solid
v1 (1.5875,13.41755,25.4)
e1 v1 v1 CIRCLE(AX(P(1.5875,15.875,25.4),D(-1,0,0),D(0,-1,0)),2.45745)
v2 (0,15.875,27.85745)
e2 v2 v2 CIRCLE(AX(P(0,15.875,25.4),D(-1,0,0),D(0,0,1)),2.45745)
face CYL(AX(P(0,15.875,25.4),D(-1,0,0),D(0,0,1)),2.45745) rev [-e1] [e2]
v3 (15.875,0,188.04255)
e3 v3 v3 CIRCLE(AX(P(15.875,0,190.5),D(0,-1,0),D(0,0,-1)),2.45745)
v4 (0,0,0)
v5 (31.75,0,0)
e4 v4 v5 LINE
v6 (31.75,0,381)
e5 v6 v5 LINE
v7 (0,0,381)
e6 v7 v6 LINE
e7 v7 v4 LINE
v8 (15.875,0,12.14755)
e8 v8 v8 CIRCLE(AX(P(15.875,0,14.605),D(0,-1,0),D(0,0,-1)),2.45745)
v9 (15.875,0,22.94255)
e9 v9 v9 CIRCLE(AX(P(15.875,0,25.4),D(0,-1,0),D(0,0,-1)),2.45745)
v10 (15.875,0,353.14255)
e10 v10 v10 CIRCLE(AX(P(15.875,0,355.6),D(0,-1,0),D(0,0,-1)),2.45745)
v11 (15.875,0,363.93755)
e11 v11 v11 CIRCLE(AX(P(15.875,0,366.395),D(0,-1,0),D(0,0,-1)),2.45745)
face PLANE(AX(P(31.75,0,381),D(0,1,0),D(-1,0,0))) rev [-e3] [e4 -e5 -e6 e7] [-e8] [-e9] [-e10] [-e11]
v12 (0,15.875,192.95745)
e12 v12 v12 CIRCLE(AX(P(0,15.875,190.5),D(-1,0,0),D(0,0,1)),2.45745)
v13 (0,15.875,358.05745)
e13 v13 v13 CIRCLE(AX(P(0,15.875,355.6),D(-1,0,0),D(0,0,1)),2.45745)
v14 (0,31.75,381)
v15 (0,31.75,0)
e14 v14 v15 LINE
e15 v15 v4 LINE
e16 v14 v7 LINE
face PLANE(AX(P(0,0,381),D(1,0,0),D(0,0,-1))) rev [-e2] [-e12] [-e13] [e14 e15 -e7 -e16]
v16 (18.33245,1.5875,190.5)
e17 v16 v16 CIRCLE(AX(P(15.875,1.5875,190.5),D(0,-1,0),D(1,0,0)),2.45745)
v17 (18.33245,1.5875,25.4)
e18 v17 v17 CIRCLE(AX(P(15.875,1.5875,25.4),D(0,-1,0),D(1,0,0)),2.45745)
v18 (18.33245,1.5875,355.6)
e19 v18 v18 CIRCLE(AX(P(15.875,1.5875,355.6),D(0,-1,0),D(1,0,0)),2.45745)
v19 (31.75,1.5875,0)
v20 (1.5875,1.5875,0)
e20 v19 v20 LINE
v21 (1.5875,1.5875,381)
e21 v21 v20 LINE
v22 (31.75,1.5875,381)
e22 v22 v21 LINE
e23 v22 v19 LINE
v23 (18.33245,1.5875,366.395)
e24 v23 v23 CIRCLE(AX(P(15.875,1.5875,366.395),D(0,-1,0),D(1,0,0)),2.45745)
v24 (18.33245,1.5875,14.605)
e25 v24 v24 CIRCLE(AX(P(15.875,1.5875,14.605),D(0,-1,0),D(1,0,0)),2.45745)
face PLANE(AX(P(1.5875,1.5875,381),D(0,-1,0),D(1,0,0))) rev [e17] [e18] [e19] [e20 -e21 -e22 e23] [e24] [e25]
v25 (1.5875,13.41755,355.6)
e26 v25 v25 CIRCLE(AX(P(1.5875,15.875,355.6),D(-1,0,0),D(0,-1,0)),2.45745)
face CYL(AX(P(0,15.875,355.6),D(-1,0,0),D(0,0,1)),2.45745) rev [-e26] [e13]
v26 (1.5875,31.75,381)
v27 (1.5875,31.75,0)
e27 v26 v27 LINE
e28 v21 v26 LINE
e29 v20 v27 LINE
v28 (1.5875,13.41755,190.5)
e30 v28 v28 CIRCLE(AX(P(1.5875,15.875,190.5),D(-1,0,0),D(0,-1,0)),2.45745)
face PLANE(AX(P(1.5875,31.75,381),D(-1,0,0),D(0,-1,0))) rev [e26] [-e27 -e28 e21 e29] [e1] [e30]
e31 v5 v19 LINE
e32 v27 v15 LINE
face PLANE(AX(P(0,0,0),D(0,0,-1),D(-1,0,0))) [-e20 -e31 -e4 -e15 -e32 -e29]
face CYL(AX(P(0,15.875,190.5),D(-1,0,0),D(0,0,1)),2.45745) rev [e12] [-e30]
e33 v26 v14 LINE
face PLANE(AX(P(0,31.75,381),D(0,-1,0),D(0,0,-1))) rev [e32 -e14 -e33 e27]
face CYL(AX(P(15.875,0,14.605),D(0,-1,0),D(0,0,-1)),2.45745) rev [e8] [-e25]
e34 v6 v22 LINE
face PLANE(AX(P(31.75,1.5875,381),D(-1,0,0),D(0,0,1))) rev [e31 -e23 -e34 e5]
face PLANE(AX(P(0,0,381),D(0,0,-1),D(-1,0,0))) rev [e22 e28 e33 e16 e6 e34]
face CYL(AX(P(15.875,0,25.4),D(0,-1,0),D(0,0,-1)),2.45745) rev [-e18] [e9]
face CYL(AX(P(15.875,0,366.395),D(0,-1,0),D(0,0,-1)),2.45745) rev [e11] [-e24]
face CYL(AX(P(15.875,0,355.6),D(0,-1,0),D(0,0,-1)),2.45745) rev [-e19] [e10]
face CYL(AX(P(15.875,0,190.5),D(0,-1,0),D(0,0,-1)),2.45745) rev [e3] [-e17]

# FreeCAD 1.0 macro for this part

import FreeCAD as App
import Part
import Sketcher

V = App.Vector
Q = App.Units.Quantity


def add_polygon(sketch, points):
    """Adds a closed chain of lines whose ends are joined by coincident constraints."""
    first, n = sketch.GeometryCount, len(points)
    for a, b in zip(points, points[1:] + points[:1]):
        sketch.addGeometry(Part.LineSegment(App.Vector(*a, 0), App.Vector(*b, 0)), False)
    for i in range(n):
        sketch.addConstraint(Sketcher.Constraint("Coincident", first + i, 2, first + (i + 1) % n, 1))

doc = App.newDocument("Part")
body = doc.addObject("PartDesign::Body", "Body")

# Sketch on XY plane
sketch1 = doc.addObject("Sketcher::SketchObject", "Sketch")
body.addObject(sketch1)
sketch1.AttachmentSupport = (doc.XY_Plane, [""])
sketch1.MapMode = "FlatFace"
add_polygon(sketch1, [(0, 31.8), (0, 0), (31.8, 0), (31.8, 1.6), (1.6, 1.6), (1.6, 31.8)])  # lines 0-5
sketch1.addConstraint([
    Sketcher.Constraint("Vertical", 0),
    Sketcher.Constraint("Horizontal", 1),
    Sketcher.Constraint("Vertical", 2),
    Sketcher.Constraint("Horizontal", 3),
    Sketcher.Constraint("Vertical", 4),
    Sketcher.Constraint("Horizontal", 5),
    Sketcher.Constraint("Coincident", 0, 2, -1, 1),
    Sketcher.Constraint("Equal", 1, 0),
    Sketcher.Constraint("Equal", 5, 2),
    Sketcher.Constraint("DistanceX", 1, 1, 1, 2, Q("1.25 in")),
    Sketcher.Constraint("DistanceX", 3, 2, 3, 1, Q("1.1875 in")),
])
pad1 = doc.addObject("PartDesign::Pad", "Pad")
body.addObject(pad1)
pad1.Profile = sketch1
pad1.Length = Q("15 in")

# Sketch on YZ plane
sketch2 = doc.addObject("Sketcher::SketchObject", "Sketch001")
body.addObject(sketch2)
sketch2.AttachmentSupport = (doc.YZ_Plane, [""])
sketch2.MapMode = "FlatFace"
sketch2.addGeometry([
    Part.Circle(V(15.9, 355.6, 0), V(0, 0, 1), 2.5),
    Part.Circle(V(15.9, 25.4, 0), V(0, 0, 1), 2.5),
    Part.Circle(V(15.9, 190.5, 0), V(0, 0, 1), 2.5),
], False)
sketch2.addConstraint([
    Sketcher.Constraint("Equal", 0, 1),
    Sketcher.Constraint("Equal", 1, 2),
    Sketcher.Constraint("Vertical", 0, 3, 1, 3),
    Sketcher.Constraint("Vertical", 1, 3, 2, 3),
    Sketcher.Constraint("DistanceY", -1, 1, 0, 3, Q("14 in")),
    Sketcher.Constraint("DistanceY", -1, 1, 1, 3, Q("1 in")),
    Sketcher.Constraint("Diameter", 0, Q("0.1935 in")),
    Sketcher.Constraint("DistanceY", -1, 1, 2, 3, Q("7.5 in")),
    Sketcher.Constraint("DistanceX", -1, 1, 0, 3, Q("0.625 in")),
])
doc.recompute()
hole = doc.addObject("PartDesign::Hole", "Hole")
body.addObject(hole)
hole.Profile = sketch2
hole.ThreadType = "None"
hole.Diameter = Q("0.1935 in")
hole.DepthType = "ThroughAll"
hole.Reversed = True

# Sketch on XZ plane
sketch3 = doc.addObject("Sketcher::SketchObject", "Sketch002")
body.addObject(sketch3)
sketch3.AttachmentSupport = (doc.XZ_Plane, [""])
sketch3.MapMode = "FlatFace"
sketch3.addGeometry([
    Part.Circle(V(15.9, 366.4, 0), V(0, 0, 1), 2.5),  # 0
    Part.Circle(V(15.9, 190.5, 0), V(0, 0, 1), 2.5),  # 1
    Part.Circle(V(15.9, 25.4, 0), V(0, 0, 1), 2.5),  # 2
    Part.Circle(V(15.9, 355.6, 0), V(0, 0, 1), 2.5),  # 3
    Part.Circle(V(15.9, 14.6, 0), V(0, 0, 1), 2.5),  # 4
], False)
sketch3.addConstraint([
    Sketcher.Constraint("Equal", 0, 1),
    Sketcher.Constraint("Equal", 1, 2),
    Sketcher.Constraint("Equal", 2, 3),
    Sketcher.Constraint("Equal", 3, 4),
    Sketcher.Constraint("Vertical", 0, 3, 1, 3),
    Sketcher.Constraint("Vertical", 1, 3, 2, 3),
    Sketcher.Constraint("Vertical", 2, 3, 3, 3),
    Sketcher.Constraint("Vertical", 3, 3, 4, 3),
    Sketcher.Constraint("DistanceY", -1, 1, 2, 3, Q("1 in")),
    Sketcher.Constraint("DistanceY", -1, 1, 3, 3, Q("14 in")),
    Sketcher.Constraint("Diameter", 0, Q("0.1935 in")),
    Sketcher.Constraint("DistanceY", -1, 1, 1, 3, Q("7.5 in")),
    Sketcher.Constraint("DistanceY", 4, 3, 0, 3, Q("13.85 in")),
    Sketcher.Constraint("DistanceX", -1, 1, 0, 3, Q("0.625 in")),
    Sketcher.Constraint("DistanceY", -1, 1, 0, 3, Q("14.425 in")),
])
doc.recompute()
hole2 = doc.addObject("PartDesign::Hole", "Hole001")
body.addObject(hole2)
hole2.Profile = sketch3
hole2.ThreadType = "None"
hole2.Diameter = Q("0.1935 in")
hole2.DepthType = "ThroughAll"

doc.recompute()
